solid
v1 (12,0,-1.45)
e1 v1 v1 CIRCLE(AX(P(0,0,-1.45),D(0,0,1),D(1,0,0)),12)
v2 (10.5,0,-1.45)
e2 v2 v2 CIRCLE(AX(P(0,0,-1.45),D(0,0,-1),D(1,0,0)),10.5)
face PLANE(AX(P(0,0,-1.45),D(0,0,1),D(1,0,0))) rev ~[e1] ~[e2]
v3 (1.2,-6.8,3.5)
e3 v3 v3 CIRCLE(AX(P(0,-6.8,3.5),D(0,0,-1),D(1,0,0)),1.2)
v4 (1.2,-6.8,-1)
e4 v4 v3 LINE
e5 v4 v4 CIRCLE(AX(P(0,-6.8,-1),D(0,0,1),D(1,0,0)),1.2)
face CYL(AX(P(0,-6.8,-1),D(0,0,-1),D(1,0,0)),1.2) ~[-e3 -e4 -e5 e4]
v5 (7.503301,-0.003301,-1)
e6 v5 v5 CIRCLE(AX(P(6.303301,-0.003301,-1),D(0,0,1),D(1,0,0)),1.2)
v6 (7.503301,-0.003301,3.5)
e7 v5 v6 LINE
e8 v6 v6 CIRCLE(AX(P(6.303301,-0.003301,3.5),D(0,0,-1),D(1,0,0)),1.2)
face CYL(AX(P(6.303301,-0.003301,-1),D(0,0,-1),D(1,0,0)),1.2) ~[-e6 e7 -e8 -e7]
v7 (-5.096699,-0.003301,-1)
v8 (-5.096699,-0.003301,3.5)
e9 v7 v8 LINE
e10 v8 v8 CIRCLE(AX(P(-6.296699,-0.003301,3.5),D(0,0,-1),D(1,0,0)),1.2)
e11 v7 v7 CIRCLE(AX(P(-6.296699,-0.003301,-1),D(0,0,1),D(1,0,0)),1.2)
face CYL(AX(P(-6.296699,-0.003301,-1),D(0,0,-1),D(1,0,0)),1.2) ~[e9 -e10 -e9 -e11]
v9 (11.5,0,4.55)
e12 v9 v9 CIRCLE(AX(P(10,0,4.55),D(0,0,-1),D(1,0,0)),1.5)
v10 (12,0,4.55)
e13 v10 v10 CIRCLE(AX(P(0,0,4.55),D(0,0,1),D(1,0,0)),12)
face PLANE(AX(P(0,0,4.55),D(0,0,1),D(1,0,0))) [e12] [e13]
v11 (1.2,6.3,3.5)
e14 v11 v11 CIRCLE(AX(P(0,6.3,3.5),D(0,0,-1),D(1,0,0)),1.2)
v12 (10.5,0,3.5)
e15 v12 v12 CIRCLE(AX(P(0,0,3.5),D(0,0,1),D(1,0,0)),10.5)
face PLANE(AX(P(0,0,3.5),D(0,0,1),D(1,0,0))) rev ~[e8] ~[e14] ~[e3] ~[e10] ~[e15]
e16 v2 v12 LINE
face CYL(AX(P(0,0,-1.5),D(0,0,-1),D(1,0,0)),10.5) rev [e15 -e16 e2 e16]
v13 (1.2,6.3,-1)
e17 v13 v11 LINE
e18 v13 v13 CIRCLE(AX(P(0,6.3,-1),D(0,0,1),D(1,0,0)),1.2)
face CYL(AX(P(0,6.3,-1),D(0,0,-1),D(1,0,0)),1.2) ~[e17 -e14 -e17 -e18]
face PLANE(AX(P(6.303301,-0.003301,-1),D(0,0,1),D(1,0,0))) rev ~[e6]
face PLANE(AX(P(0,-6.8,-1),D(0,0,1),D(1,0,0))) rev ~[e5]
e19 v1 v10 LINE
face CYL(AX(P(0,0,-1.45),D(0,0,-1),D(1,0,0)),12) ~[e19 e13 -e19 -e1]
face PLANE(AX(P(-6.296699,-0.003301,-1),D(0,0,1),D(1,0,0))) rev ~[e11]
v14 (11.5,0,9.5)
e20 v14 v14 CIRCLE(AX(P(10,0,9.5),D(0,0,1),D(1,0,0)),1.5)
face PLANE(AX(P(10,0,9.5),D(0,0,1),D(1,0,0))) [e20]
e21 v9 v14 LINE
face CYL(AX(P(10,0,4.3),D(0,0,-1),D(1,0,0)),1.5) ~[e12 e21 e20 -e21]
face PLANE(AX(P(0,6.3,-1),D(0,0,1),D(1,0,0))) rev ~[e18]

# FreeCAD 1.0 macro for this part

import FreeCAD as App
import Part
import Sketcher

V = App.Vector
Q = App.Units.Quantity

doc = App.newDocument("Part")
body = doc.addObject("PartDesign::Body", "Body")

sketch1 = doc.addObject("Sketcher::SketchObject", "Sketch")
body.addObject(sketch1)
sketch1.AttachmentSupport = (doc.XY_Plane, [""])
sketch1.MapMode = "FlatFace"
sketch1.AttachmentOffset = App.Placement(V(0, 0, 4.3), App.Rotation())
sketch1.addGeometry(Part.Circle(V(10, 0, 0), V(0, 0, 1), 1.5), False)
sketch1.addConstraint([
    Sketcher.Constraint("PointOnObject", 0, 3, -1),
    Sketcher.Constraint("Diameter", 0, Q("3 mm")),
    Sketcher.Constraint("DistanceX", -1, 1, 0, 3, Q("10 mm")),
])
pad1 = doc.addObject("PartDesign::Pad", "Pad")
body.addObject(pad1)
pad1.Profile = sketch1
pad1.Length = 5.2
body2 = doc.addObject("PartDesign::Body", "Body001")

sketch2 = doc.addObject("Sketcher::SketchObject", "Sketch001")
body2.addObject(sketch2)
sketch2.AttachmentSupport = (doc.getObject("XY_Plane001"), [""])
sketch2.MapMode = "FlatFace"
sketch2.AttachmentOffset = App.Placement(V(0, 0, -1), App.Rotation())
sketch2.addGeometry(Part.Circle(V(0, -6.8, 0), V(0, 0, 1), 1.2), False)
sketch2.addConstraint([
    Sketcher.Constraint("PointOnObject", 0, 3, -2),
    Sketcher.Constraint("Diameter", 0, Q("2.4 mm")),
    Sketcher.Constraint("DistanceY", 0, 3, -1, 1, Q("6.8 mm")),
])
pad2 = doc.addObject("PartDesign::Pad", "Pad001")
body2.addObject(pad2)
pad2.Profile = sketch2
pad2.Length = 4.8
body3 = doc.addObject("PartDesign::Body", "Body002")

sketch3 = doc.addObject("Sketcher::SketchObject", "Sketch002")
body3.addObject(sketch3)
sketch3.AttachmentSupport = (doc.getObject("XY_Plane002"), [""])
sketch3.MapMode = "FlatFace"
sketch3.AttachmentOffset = App.Placement(V(0, 0, -1), App.Rotation())
sketch3.addGeometry(Part.Circle(V(6.3, 0, 0), V(0, 0, 1), 1.2), False)
sketch3.addConstraint([
    Sketcher.Constraint("Diameter", 0, Q("2.4 mm")),
    Sketcher.Constraint("DistanceX", -1, 1, 0, 3, Q("6.303301 mm")),
    Sketcher.Constraint("DistanceY", 0, 3, -1, 1, Q("0.003301 mm")),
])
pad3 = doc.addObject("PartDesign::Pad", "Pad002")
body3.addObject(pad3)
pad3.Profile = sketch3
pad3.Length = 4.8
body4 = doc.addObject("PartDesign::Body", "Body003")

sketch4 = doc.addObject("Sketcher::SketchObject", "Sketch003")
body4.addObject(sketch4)
sketch4.AttachmentSupport = (doc.getObject("XY_Plane003"), [""])
sketch4.MapMode = "FlatFace"
sketch4.AttachmentOffset = App.Placement(V(0, 0, -1), App.Rotation())
sketch4.addGeometry(Part.Circle(V(0, 6.3, 0), V(0, 0, 1), 1.2), False)
sketch4.addConstraint([
    Sketcher.Constraint("PointOnObject", 0, 3, -2),
    Sketcher.Constraint("Diameter", 0, Q("2.4 mm")),
    Sketcher.Constraint("DistanceY", -1, 1, 0, 3, Q("6.3 mm")),
])
pad4 = doc.addObject("PartDesign::Pad", "Pad003")
body4.addObject(pad4)
pad4.Profile = sketch4
pad4.Length = 4.8
body5 = doc.addObject("PartDesign::Body", "Body004")

sketch5 = doc.addObject("Sketcher::SketchObject", "Sketch004")
body5.addObject(sketch5)
sketch5.AttachmentSupport = (doc.getObject("XY_Plane004"), [""])
sketch5.MapMode = "FlatFace"
sketch5.AttachmentOffset = App.Placement(V(0, 0, -1), App.Rotation())
sketch5.addGeometry(Part.Circle(V(-6.3, 0, 0), V(0, 0, 1), 1.2), False)
sketch5.addConstraint([
    Sketcher.Constraint("Diameter", 0, Q("2.4 mm")),
    Sketcher.Constraint("DistanceX", 0, 3, -1, 1, Q("6.296699 mm")),
    Sketcher.Constraint("DistanceY", 0, 3, -1, 1, Q("0.003301 mm")),
])
pad5 = doc.addObject("PartDesign::Pad", "Pad004")
body5.addObject(pad5)
pad5.Profile = sketch5
pad5.Length = 4.8
body6 = doc.addObject("PartDesign::Body", "Body005")

sketch6 = doc.addObject("Sketcher::SketchObject", "Sketch005")
body6.addObject(sketch6)
sketch6.AttachmentSupport = (doc.getObject("XY_Plane005"), [""])
sketch6.MapMode = "FlatFace"
sketch6.AttachmentOffset = App.Placement(V(0, 0, -1.5), App.Rotation())
sketch6.addGeometry(Part.Circle(V(0, 0, 0), V(0, 0, 1), 10), False)
sketch6.addConstraint([
    Sketcher.Constraint("Coincident", 0, 3, -1, 1),
    Sketcher.Constraint("Diameter", 0, Q("21 mm")),
])
pad6 = doc.addObject("PartDesign::Pad", "Pad005")
body6.addObject(pad6)
pad6.Profile = sketch6
pad6.Length = 5
body7 = doc.addObject("PartDesign::Body", "Body006")

sketch7 = doc.addObject("Sketcher::SketchObject", "Sketch006")
body7.addObject(sketch7)
sketch7.AttachmentSupport = (doc.getObject("XY_Plane006"), [""])
sketch7.MapMode = "FlatFace"
sketch7.AttachmentOffset = App.Placement(V(0, 0, -1.45), App.Rotation())
sketch7.addGeometry(Part.Circle(V(0, 0, 0), V(0, 0, 1), 12), False)
sketch7.addConstraint([
    Sketcher.Constraint("Coincident", 0, 3, -1, 1),
    Sketcher.Constraint("Diameter", 0, Q("24 mm")),
])
pad7 = doc.addObject("PartDesign::Pad", "Pad006")
body7.addObject(pad7)
pad7.Profile = sketch7
pad7.Length = 6
doc.recompute()

boolean = doc.addObject("PartDesign::Boolean", "Boolean")
body7.addObject(boolean)
boolean.Type = "Cut"
boolean.addObjects([body6])
doc.recompute()

boolean2 = doc.addObject("PartDesign::Boolean", "Boolean001")
body7.addObject(boolean2)
boolean2.Type = "Fuse"
boolean2.addObjects([body2])
doc.recompute()

boolean3 = doc.addObject("PartDesign::Boolean", "Boolean002")
body7.addObject(boolean3)
boolean3.Type = "Fuse"
boolean3.addObjects([body3])
doc.recompute()

boolean4 = doc.addObject("PartDesign::Boolean", "Boolean003")
body7.addObject(boolean4)
boolean4.Type = "Fuse"
boolean4.addObjects([body4])
doc.recompute()

boolean5 = doc.addObject("PartDesign::Boolean", "Boolean004")
body7.addObject(boolean5)
boolean5.Type = "Fuse"
boolean5.addObjects([body5])
doc.recompute()

boolean6 = doc.addObject("PartDesign::Boolean", "Boolean005")
body7.addObject(boolean6)
boolean6.Type = "Fuse"
boolean6.addObjects([body])

doc.recompute()
